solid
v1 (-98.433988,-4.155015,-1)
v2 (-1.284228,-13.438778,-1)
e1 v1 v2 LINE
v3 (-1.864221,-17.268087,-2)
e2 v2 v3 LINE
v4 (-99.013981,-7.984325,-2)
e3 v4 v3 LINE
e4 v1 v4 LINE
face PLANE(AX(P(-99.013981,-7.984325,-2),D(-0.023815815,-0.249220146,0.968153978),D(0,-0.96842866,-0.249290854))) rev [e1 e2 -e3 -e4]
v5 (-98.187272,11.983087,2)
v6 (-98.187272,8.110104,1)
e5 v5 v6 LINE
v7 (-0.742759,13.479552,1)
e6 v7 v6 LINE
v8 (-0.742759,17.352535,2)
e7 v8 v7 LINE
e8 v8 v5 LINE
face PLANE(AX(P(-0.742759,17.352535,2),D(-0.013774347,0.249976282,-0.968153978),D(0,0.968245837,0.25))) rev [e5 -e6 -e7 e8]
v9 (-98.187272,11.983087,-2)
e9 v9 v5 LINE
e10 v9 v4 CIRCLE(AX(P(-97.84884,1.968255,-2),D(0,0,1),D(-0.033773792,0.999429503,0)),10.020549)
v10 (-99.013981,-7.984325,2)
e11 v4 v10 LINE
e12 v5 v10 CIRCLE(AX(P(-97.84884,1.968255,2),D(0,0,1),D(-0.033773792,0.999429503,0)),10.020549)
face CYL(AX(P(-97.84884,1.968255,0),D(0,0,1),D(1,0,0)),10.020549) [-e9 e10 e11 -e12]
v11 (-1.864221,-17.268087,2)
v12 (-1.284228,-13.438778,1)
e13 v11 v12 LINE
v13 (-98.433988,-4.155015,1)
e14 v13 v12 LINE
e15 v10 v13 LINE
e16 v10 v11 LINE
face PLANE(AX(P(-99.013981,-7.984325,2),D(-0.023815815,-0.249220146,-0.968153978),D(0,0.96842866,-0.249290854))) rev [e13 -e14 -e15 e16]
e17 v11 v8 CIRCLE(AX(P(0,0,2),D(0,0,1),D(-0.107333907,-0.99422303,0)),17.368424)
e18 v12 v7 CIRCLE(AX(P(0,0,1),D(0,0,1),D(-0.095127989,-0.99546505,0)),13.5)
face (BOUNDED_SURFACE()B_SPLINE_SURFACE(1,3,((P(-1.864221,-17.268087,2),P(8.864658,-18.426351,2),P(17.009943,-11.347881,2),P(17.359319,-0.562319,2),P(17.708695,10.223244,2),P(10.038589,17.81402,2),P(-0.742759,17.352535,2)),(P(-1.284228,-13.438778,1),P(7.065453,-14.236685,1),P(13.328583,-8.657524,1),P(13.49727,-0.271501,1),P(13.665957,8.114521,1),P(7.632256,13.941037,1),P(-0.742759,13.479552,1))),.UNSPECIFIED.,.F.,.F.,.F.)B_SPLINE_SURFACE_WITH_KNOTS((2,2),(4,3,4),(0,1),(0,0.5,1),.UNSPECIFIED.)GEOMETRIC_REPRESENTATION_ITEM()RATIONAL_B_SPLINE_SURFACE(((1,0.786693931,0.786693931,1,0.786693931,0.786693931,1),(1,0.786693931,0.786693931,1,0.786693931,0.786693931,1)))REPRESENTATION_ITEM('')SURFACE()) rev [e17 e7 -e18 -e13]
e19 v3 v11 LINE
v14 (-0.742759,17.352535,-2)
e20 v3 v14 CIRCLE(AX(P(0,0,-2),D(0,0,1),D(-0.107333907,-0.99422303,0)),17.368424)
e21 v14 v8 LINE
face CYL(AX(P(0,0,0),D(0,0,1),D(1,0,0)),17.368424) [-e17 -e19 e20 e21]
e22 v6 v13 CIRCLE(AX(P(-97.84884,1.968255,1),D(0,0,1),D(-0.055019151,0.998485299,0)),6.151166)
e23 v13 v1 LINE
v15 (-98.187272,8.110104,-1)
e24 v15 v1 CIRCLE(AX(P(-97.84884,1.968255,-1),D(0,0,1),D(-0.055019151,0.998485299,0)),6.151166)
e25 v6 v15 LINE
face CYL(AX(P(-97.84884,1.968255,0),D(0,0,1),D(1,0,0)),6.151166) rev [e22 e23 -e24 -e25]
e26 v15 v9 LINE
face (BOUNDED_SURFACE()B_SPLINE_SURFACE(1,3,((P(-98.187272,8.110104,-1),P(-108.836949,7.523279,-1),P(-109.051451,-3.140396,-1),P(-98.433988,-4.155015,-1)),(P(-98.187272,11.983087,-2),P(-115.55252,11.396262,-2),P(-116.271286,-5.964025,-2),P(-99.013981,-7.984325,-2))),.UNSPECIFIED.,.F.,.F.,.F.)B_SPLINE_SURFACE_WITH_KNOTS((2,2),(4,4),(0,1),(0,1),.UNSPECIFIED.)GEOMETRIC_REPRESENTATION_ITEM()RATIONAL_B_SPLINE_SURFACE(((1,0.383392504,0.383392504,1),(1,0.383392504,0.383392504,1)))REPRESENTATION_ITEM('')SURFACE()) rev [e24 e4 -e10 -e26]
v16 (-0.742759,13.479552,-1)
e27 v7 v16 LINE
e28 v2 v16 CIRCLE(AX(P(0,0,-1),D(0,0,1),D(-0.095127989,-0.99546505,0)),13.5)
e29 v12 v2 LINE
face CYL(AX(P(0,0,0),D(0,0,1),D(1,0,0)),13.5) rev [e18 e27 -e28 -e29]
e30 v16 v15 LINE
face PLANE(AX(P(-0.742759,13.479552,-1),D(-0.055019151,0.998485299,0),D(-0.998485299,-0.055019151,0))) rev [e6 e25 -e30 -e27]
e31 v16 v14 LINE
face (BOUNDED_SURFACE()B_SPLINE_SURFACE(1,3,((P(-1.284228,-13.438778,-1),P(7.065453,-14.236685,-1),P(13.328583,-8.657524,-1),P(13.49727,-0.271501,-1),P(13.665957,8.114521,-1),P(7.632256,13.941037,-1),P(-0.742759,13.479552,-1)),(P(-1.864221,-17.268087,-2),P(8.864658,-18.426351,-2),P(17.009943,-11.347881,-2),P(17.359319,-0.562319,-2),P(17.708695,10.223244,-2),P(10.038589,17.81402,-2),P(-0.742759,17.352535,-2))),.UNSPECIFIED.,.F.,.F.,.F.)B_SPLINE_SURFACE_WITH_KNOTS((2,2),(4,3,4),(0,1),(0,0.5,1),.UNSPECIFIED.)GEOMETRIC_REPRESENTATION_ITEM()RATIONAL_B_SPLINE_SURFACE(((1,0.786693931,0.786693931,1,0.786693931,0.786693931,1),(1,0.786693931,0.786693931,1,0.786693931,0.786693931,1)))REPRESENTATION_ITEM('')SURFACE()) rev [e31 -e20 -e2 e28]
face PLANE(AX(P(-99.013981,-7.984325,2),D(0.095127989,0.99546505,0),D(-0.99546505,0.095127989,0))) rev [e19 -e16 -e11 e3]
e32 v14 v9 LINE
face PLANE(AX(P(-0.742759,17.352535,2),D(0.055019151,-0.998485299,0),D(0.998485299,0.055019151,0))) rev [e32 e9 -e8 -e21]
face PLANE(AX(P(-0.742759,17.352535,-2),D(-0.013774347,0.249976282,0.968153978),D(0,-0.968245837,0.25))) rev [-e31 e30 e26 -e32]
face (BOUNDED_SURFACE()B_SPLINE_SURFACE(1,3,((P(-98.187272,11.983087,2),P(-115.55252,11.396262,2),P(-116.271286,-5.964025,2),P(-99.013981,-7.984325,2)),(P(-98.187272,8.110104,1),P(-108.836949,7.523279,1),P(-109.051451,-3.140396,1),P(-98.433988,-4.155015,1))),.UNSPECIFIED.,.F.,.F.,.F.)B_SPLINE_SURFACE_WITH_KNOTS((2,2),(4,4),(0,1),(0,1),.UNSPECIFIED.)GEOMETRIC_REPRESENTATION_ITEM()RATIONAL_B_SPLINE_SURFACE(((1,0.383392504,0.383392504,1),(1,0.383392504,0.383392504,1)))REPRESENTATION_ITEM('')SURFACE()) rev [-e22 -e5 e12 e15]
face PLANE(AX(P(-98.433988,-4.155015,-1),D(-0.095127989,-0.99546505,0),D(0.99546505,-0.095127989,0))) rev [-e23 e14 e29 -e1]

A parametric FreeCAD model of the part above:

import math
import FreeCAD as App
import Part
import Sketcher
from FreeCAD import Vector

doc = App.newDocument("Part")
body = doc.addObject("PartDesign::Body", "Body")

# Sketch on YZ plane
sketch1 = body.newObject("Sketcher::SketchObject", "Sketch")
sketch1.AttachmentSupport = (doc.getObject("YZ_Plane"), [""])
sketch1.MapMode = "FlatFace"
sketch1.AttachmentOffset = App.Placement(Vector(0, 0, -0.742759), App.Rotation())
sketch1.addGeometry(Part.LineSegment(Vector(17.4, -2, 0), Vector(17.4, 2, 0)), False)
sketch1.addGeometry(Part.LineSegment(Vector(17.4, 2, 0), Vector(13.5, 1, 0)), False)
sketch1.addGeometry(Part.LineSegment(Vector(13.5, 1, 0), Vector(13.5, -1, 0)), False)
sketch1.addGeometry(Part.LineSegment(Vector(13.5, -1, 0), Vector(17.4, -2, 0)), False)
sketch1.addConstraint(Sketcher.Constraint("Coincident", 0, 2, 1, 1))
sketch1.addConstraint(Sketcher.Constraint("Coincident", 1, 2, 2, 1))
sketch1.addConstraint(Sketcher.Constraint("Coincident", 2, 2, 3, 1))
sketch1.addConstraint(Sketcher.Constraint("Coincident", 3, 2, 0, 1))
sketch1.addConstraint(Sketcher.Constraint("Vertical", 0))
sketch1.addConstraint(Sketcher.Constraint("Vertical", 2))
sketch1.addConstraint(Sketcher.Constraint("Equal", 1, 3))
sketch1.addConstraint(Sketcher.Constraint("DistanceY", 0, 1, 0, 2, 4.0))
sketch1.addConstraint(Sketcher.Constraint("DistanceY", 2, 2, 2, 1, 2.0))
sketch1.addConstraint(Sketcher.Constraint("Distance", 1, 4.0))
sketch1.addConstraint(Sketcher.Constraint("DistanceY", -1, 1, 0, 2, 2.0))
sketch1.addConstraint(Sketcher.Constraint("DistanceX", -1, 1, 1, 2, 13.479552))

# Sketch on XY plane
sketch2 = body.newObject("Sketcher::SketchObject", "Sketch001")
sketch2.AttachmentSupport = (doc.getObject("XY_Plane"), [""])
sketch2.MapMode = "FlatFace"
sketch2.addGeometry(Part.LineSegment(Vector(-1, -13, 0), Vector(-98, -4, 0)), False)
sketch2.addGeometry(Part.ArcOfCircle(Part.Circle(Vector(-98, 2, 0), Vector(0, 0, 1), 6), math.radians(93), math.radians(265)), False)
sketch2.addGeometry(Part.LineSegment(Vector(-98, 8, 0), Vector(-1, 13, 0)), False)
sketch2.addGeometry(Part.ArcOfCircle(Part.Circle(Vector(0, 0, 0), Vector(0, 0, 1), 14), math.radians(-95), math.radians(93)), False)
sketch2.addConstraint(Sketcher.Constraint("Tangent", 0, 2, 1, 2))
sketch2.addConstraint(Sketcher.Constraint("Tangent", 1, 1, 2, 1))
sketch2.addConstraint(Sketcher.Constraint("Tangent", 2, 2, 3, 2))
sketch2.addConstraint(Sketcher.Constraint("Tangent", 3, 1, 0, 1))
sketch2.addConstraint(Sketcher.Constraint("Coincident", 3, 3, -1, 1))
sketch2.addConstraint(Sketcher.Constraint("Radius", 3, 13.5))
sketch2.addConstraint(Sketcher.Constraint("Radius", 1, 6.151166))
sketch2.addConstraint(Sketcher.Constraint("DistanceX", 1, 3, -1, 1, 97.84884))
sketch2.addConstraint(Sketcher.Constraint("DistanceX", 1, 1, -1, 1, 98.187272))
doc.recompute()

additivepipe = body.newObject("PartDesign::AdditivePipe", "AdditivePipe")
additivepipe.Profile = sketch1
additivepipe.Spine = (sketch2, ["Edge1", "Edge2", "Edge3", "Edge4"])

doc.recompute()
